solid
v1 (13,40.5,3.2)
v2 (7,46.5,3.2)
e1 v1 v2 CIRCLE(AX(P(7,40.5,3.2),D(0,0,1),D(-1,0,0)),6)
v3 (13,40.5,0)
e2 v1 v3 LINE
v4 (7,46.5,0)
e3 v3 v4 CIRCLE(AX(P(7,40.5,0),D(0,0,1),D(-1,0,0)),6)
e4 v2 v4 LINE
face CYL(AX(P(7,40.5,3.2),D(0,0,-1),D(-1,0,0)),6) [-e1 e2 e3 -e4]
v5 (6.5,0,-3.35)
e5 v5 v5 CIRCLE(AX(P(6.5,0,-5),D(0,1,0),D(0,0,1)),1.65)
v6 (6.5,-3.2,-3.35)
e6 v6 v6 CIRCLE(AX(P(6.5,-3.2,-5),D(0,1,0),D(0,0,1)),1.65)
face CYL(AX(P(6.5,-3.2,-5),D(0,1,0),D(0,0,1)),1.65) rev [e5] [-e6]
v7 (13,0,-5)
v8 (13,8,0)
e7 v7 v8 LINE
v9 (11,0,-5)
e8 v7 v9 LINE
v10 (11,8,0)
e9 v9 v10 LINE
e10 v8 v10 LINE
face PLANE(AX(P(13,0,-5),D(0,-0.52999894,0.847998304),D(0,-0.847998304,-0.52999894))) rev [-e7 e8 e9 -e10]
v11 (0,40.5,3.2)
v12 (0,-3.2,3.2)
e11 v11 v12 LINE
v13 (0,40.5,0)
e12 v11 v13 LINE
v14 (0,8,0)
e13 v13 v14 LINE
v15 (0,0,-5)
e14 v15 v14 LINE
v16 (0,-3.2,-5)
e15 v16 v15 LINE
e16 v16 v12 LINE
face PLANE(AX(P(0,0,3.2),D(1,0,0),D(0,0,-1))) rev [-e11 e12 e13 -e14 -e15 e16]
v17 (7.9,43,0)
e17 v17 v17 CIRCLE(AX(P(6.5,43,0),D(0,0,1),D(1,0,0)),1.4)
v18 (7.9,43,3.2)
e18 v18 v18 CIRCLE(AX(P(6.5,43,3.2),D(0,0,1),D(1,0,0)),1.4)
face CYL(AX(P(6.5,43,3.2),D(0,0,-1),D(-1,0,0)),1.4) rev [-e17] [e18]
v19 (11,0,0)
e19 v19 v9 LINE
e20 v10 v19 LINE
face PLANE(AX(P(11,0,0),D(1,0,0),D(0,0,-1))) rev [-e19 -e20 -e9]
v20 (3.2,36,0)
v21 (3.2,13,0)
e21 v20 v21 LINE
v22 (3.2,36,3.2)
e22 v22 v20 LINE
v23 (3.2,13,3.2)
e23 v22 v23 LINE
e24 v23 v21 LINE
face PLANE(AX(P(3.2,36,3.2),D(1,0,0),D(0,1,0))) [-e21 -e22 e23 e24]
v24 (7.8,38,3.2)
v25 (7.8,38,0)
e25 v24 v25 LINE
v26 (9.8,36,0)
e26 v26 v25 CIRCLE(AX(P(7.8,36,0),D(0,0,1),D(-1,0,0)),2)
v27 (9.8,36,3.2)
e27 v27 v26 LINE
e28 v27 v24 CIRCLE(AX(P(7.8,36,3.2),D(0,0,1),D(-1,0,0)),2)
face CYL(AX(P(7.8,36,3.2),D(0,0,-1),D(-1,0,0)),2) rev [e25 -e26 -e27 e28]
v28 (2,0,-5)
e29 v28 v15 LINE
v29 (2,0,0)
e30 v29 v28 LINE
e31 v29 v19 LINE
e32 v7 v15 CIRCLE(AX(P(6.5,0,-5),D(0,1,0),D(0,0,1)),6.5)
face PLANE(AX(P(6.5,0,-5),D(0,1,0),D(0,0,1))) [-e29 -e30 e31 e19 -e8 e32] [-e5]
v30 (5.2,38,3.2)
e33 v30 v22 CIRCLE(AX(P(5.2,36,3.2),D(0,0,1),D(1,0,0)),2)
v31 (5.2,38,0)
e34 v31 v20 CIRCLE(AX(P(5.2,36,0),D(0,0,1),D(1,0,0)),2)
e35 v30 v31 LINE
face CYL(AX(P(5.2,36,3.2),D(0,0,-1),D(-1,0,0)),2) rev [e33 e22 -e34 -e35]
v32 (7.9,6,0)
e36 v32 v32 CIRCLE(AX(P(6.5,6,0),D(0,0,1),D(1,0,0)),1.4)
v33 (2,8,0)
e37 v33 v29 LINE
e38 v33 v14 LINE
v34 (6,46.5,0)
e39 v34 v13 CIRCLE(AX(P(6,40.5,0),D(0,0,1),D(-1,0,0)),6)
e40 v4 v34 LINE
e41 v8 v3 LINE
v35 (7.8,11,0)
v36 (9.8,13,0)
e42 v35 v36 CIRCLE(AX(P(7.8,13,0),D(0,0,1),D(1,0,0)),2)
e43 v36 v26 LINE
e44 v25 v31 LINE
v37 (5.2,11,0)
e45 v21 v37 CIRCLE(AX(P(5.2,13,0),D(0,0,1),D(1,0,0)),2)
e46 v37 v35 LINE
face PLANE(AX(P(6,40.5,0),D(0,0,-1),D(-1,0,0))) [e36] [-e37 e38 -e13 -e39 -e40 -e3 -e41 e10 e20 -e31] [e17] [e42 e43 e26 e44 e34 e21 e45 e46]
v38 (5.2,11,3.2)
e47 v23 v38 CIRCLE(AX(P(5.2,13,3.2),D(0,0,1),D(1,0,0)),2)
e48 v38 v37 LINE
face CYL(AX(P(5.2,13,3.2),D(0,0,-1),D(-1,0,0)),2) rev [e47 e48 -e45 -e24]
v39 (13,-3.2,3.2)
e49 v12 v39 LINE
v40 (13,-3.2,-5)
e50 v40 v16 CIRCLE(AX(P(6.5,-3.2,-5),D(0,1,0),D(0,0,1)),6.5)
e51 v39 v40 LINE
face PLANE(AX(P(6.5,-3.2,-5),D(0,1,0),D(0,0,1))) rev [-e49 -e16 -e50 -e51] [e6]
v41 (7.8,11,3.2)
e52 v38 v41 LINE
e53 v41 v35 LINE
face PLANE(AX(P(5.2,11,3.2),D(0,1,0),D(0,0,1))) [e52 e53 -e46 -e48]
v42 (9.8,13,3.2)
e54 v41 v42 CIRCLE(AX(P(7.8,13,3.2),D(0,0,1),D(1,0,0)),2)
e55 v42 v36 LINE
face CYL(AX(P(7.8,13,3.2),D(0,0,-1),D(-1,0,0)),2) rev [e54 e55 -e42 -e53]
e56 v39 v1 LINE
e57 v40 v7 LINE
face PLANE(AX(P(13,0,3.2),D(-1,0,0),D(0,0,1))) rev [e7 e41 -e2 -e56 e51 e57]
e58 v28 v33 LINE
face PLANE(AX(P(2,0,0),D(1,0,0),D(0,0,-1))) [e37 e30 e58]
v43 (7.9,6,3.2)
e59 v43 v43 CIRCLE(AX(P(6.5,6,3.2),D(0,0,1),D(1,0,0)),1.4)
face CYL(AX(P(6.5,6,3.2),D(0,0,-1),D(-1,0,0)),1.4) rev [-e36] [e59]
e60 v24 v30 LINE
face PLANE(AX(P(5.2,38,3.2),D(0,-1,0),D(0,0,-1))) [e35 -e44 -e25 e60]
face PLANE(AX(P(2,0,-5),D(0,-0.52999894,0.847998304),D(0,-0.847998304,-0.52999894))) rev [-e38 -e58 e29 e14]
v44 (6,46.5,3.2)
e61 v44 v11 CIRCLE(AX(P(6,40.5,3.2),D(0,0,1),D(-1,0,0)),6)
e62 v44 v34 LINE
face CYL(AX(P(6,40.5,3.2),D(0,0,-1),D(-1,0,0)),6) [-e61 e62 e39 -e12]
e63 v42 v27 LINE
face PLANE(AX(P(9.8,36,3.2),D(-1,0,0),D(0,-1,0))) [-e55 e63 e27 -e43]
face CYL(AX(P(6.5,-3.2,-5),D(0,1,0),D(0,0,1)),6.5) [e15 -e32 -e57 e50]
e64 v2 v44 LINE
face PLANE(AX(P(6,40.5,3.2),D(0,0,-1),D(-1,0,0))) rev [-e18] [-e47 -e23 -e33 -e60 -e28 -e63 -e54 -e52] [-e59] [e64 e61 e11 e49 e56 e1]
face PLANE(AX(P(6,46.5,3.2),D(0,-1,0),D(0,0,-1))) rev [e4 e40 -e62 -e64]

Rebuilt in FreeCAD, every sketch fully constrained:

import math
import FreeCAD as App
import Part
import Sketcher
from FreeCAD import Vector


def add_polygon(sketch, points):
    """Adds a closed chain of lines whose ends are joined by coincident constraints."""
    first, n = sketch.GeometryCount, len(points)
    for a, b in zip(points, points[1:] + points[:1]):
        sketch.addGeometry(Part.LineSegment(App.Vector(*a, 0), App.Vector(*b, 0)), False)
    for i in range(n):
        sketch.addConstraint(Sketcher.Constraint("Coincident", first + i, 2, first + (i + 1) % n, 1))

doc = App.newDocument("Part")
body = doc.addObject("PartDesign::Body", "Body")

# Sketch on XY plane
sketch1 = body.newObject("Sketcher::SketchObject", "Sketch")
sketch1.AttachmentSupport = (doc.getObject("XY_Plane"), [""])
sketch1.MapMode = "FlatFace"
sketch1.addGeometry(Part.LineSegment(Vector(0, 0, 0), Vector(13, 0, 0)), False)
sketch1.addGeometry(Part.LineSegment(Vector(13, 0, 0), Vector(13, 40.5, 0)), False)
sketch1.addGeometry(Part.ArcOfCircle(Part.Circle(Vector(7, 40.5, 0), Vector(0, 0, 1), 6), math.radians(0), math.radians(90)), False)
sketch1.addGeometry(Part.LineSegment(Vector(7, 46.5, 0), Vector(6, 46.5, 0)), False)
sketch1.addGeometry(Part.ArcOfCircle(Part.Circle(Vector(6, 40.5, 0), Vector(0, 0, 1), 6), math.radians(90), math.radians(180)), False)
sketch1.addGeometry(Part.LineSegment(Vector(0, 40.5, 0), Vector(0, 0, 0)), False)
sketch1.addGeometry(Part.Circle(Vector(6.5, 6, 0), Vector(0, 0, 1), 1.4), False)
sketch1.addGeometry(Part.Circle(Vector(6.5, 43, 0), Vector(0, 0, 1), 1.4), False)
sketch1.addConstraint(Sketcher.Constraint("Coincident", 0, 2, 1, 1))
sketch1.addConstraint(Sketcher.Constraint("Tangent", 1, 2, 2, 1))
sketch1.addConstraint(Sketcher.Constraint("Tangent", 2, 2, 3, 1))
sketch1.addConstraint(Sketcher.Constraint("Tangent", 3, 2, 4, 1))
sketch1.addConstraint(Sketcher.Constraint("Tangent", 4, 2, 5, 1))
sketch1.addConstraint(Sketcher.Constraint("Coincident", 5, 2, 0, 1))
sketch1.addConstraint(Sketcher.Constraint("Horizontal", 0))
sketch1.addConstraint(Sketcher.Constraint("Vertical", 1))
sketch1.addConstraint(Sketcher.Constraint("Horizontal", 3))
sketch1.addConstraint(Sketcher.Constraint("Vertical", 5))
sketch1.addConstraint(Sketcher.Constraint("Coincident", 5, 2, -1, 1))
sketch1.addConstraint(Sketcher.Constraint("Equal", 2, 4))
sketch1.addConstraint(Sketcher.Constraint("Equal", 6, 7))
sketch1.addConstraint(Sketcher.Constraint("Vertical", 6, 3, 7, 3))
sketch1.addConstraint(Sketcher.Constraint("Radius", 2, 6.0))
sketch1.addConstraint(Sketcher.Constraint("Diameter", 6, 2.8))
sketch1.addConstraint(Sketcher.Constraint("DistanceX", 0, 1, 0, 2, 13.0))
sketch1.addConstraint(Sketcher.Constraint("DistanceY", 1, 1, 1, 2, 40.5))
sketch1.addConstraint(Sketcher.Constraint("DistanceY", -1, 1, 6, 3, 6.0))
sketch1.addConstraint(Sketcher.Constraint("DistanceY", -1, 1, 7, 3, 43.0))
sketch1.addConstraint(Sketcher.Constraint("DistanceX", -1, 1, 6, 3, 6.5))
pad1 = body.newObject("PartDesign::Pad", "Pad")
pad1.Profile = sketch1
pad1.Length = 3.2

# Sketch on XZ plane
sketch2 = body.newObject("Sketcher::SketchObject", "Sketch001")
sketch2.AttachmentSupport = (doc.getObject("XZ_Plane"), [""])
sketch2.MapMode = "FlatFace"
sketch2.addGeometry(Part.LineSegment(Vector(0, -5, 0), Vector(0, 3.2, 0)), False)
sketch2.addGeometry(Part.LineSegment(Vector(0, 3.2, 0), Vector(13, 3.2, 0)), False)
sketch2.addGeometry(Part.LineSegment(Vector(13, 3.2, 0), Vector(13, -5, 0)), False)
sketch2.addGeometry(Part.ArcOfCircle(Part.Circle(Vector(6.5, -5, 0), Vector(0, 0, 1), 6.5), math.radians(180), math.radians(360)), False)
sketch2.addGeometry(Part.Circle(Vector(6.5, -5, 0), Vector(0, 0, 1), 1.6), False)
sketch2.addConstraint(Sketcher.Constraint("Coincident", 0, 2, 1, 1))
sketch2.addConstraint(Sketcher.Constraint("Coincident", 1, 2, 2, 1))
sketch2.addConstraint(Sketcher.Constraint("Tangent", 2, 2, 3, 2))
sketch2.addConstraint(Sketcher.Constraint("Tangent", 3, 1, 0, 1))
sketch2.addConstraint(Sketcher.Constraint("Vertical", 0))
sketch2.addConstraint(Sketcher.Constraint("Horizontal", 1))
sketch2.addConstraint(Sketcher.Constraint("Vertical", 2))
sketch2.addConstraint(Sketcher.Constraint("Coincident", 4, 3, 3, 3))
sketch2.addConstraint(Sketcher.Constraint("PointOnObject", 0, 2, -2))
sketch2.addConstraint(Sketcher.Constraint("Diameter", 4, 3.3))
sketch2.addConstraint(Sketcher.Constraint("Radius", 3, 6.5))
sketch2.addConstraint(Sketcher.Constraint("DistanceY", 0, 1, 0, 2, 8.2))
sketch2.addConstraint(Sketcher.Constraint("DistanceY", 3, 3, -1, 1, 5.0))
pad2 = body.newObject("PartDesign::Pad", "Pad001")
pad2.Profile = sketch2
pad2.Length = 3.2

# Sketch on YZ plane
sketch3 = body.newObject("Sketcher::SketchObject", "Sketch002")
sketch3.AttachmentSupport = (doc.getObject("YZ_Plane"), [""])
sketch3.MapMode = "FlatFace"
add_polygon(sketch3, [(0, 0), (0, -5), (8, 0)])  # lines 0-2
sketch3.addConstraint(Sketcher.Constraint("Vertical", 0))
sketch3.addConstraint(Sketcher.Constraint("Horizontal", 2))
sketch3.addConstraint(Sketcher.Constraint("Coincident", 2, 2, -1, 1))
sketch3.addConstraint(Sketcher.Constraint("DistanceX", 2, 2, 2, 1, 8.0))
sketch3.addConstraint(Sketcher.Constraint("DistanceY", 0, 2, 0, 1, 5.0))
pad3 = body.newObject("PartDesign::Pad", "Pad002")
pad3.Profile = sketch3
pad3.Length = 2
doc.recompute()

linearpattern = body.newObject("PartDesign::LinearPattern", "LinearPattern")
linearpattern.Originals = [pad3]
linearpattern.Direction = (doc.getObject("X_Axis"), [""])
linearpattern.Mode = "offset"
linearpattern.Offset = 11
linearpattern.Occurrences = 2
body.Tip = linearpattern

# Sketch on XY plane
sketch4 = body.newObject("Sketcher::SketchObject", "Sketch003")
sketch4.AttachmentSupport = (doc.getObject("XY_Plane"), [""])
sketch4.MapMode = "FlatFace"
sketch4.addGeometry(Part.LineSegment(Vector(7.8, 38, 0), Vector(5.2, 38, 0)), False)
sketch4.addGeometry(Part.ArcOfCircle(Part.Circle(Vector(5.2, 36, 0), Vector(0, 0, 1), 2), math.radians(90), math.radians(180)), False)
sketch4.addGeometry(Part.LineSegment(Vector(3.2, 36, 0), Vector(3.2, 13, 0)), False)
sketch4.addGeometry(Part.ArcOfCircle(Part.Circle(Vector(5.2, 13, 0), Vector(0, 0, 1), 2), math.radians(-180), math.radians(-90)), False)
sketch4.addGeometry(Part.LineSegment(Vector(5.2, 11, 0), Vector(7.8, 11, 0)), False)
sketch4.addGeometry(Part.ArcOfCircle(Part.Circle(Vector(7.8, 13, 0), Vector(0, 0, 1), 2), math.radians(-90), math.radians(0)), False)
sketch4.addGeometry(Part.LineSegment(Vector(9.8, 13, 0), Vector(9.8, 36, 0)), False)
sketch4.addGeometry(Part.ArcOfCircle(Part.Circle(Vector(7.8, 36, 0), Vector(0, 0, 1), 2), math.radians(0), math.radians(90)), False)
sketch4.addConstraint(Sketcher.Constraint("Tangent", 0, 2, 1, 1))
sketch4.addConstraint(Sketcher.Constraint("Tangent", 1, 2, 2, 1))
sketch4.addConstraint(Sketcher.Constraint("Tangent", 2, 2, 3, 1))
sketch4.addConstraint(Sketcher.Constraint("Tangent", 3, 2, 4, 1))
sketch4.addConstraint(Sketcher.Constraint("Tangent", 4, 2, 5, 1))
sketch4.addConstraint(Sketcher.Constraint("Tangent", 5, 2, 6, 1))
sketch4.addConstraint(Sketcher.Constraint("Tangent", 6, 2, 7, 1))
sketch4.addConstraint(Sketcher.Constraint("Tangent", 7, 2, 0, 1))
sketch4.addConstraint(Sketcher.Constraint("Horizontal", 0))
sketch4.addConstraint(Sketcher.Constraint("Vertical", 2))
sketch4.addConstraint(Sketcher.Constraint("Horizontal", 4))
sketch4.addConstraint(Sketcher.Constraint("Vertical", 6))
sketch4.addConstraint(Sketcher.Constraint("Equal", 1, 3))
sketch4.addConstraint(Sketcher.Constraint("Equal", 3, 5))
sketch4.addConstraint(Sketcher.Constraint("Equal", 5, 7))
sketch4.addConstraint(Sketcher.Constraint("Radius", 1, 2.0))
sketch4.addConstraint(Sketcher.Constraint("DistanceY", 2, 2, 2, 1, 23.0))
sketch4.addConstraint(Sketcher.Constraint("DistanceX", 0, 2, 0, 1, 2.6))
sketch4.addConstraint(Sketcher.Constraint("DistanceY", -1, 1, 1, 3, 36.0))
sketch4.addConstraint(Sketcher.Constraint("DistanceX", -1, 1, 1, 3, 5.2))
pocket1 = body.newObject("PartDesign::Pocket", "Pocket")
pocket1.Profile = sketch4
pocket1.Type = "ThroughAll"
pocket1.Reversed = True

doc.recompute()
